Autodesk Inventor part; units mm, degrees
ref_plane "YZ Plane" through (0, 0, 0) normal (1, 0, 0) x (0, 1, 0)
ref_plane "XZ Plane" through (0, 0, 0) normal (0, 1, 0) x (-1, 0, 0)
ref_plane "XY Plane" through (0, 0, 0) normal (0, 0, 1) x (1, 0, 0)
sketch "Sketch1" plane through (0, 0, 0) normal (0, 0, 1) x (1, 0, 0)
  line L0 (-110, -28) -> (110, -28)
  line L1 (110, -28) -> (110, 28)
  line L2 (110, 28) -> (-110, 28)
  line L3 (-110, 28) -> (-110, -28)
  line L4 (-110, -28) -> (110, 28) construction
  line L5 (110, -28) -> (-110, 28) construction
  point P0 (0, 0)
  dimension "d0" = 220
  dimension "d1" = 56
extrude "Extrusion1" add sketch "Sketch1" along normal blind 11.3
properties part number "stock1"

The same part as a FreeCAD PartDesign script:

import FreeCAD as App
import Part
import Sketcher
from FreeCAD import Vector

doc = App.newDocument("Part")
body = doc.addObject("PartDesign::Body", "Body")

# Sketch on XY plane
sketch1 = doc.addObject("Sketcher::SketchObject", "Sketch")
body.addObject(sketch1)
sketch1.AttachmentSupport = (doc.XY_Plane, [""])
sketch1.MapMode = "FlatFace"
sketch1.addGeometry([
    Part.LineSegment(Vector(-110, 28, 0), Vector(-110, -28, 0)),
    Part.LineSegment(Vector(-110, -28, 0), Vector(110, -28, 0)),
    Part.LineSegment(Vector(110, -28, 0), Vector(110, 28, 0)),
    Part.LineSegment(Vector(110, 28, 0), Vector(-110, 28, 0)),
], False)
sketch1.addConstraint([
    Sketcher.Constraint("Coincident", 0, 2, 1, 1),
    Sketcher.Constraint("Coincident", 1, 2, 2, 1),
    Sketcher.Constraint("Coincident", 2, 2, 3, 1),
    Sketcher.Constraint("Coincident", 3, 2, 0, 1),
    Sketcher.Constraint("Vertical", 0),
    Sketcher.Constraint("Horizontal", 1),
    Sketcher.Constraint("Vertical", 2),
    Sketcher.Constraint("Horizontal", 3),
    Sketcher.Constraint("Symmetric", 0, 2, 2, 2, -1, 1),
    Sketcher.Constraint("DistanceX", 1, 1, 1, 2, 220.0),
    Sketcher.Constraint("DistanceY", 0, 2, 0, 1, 56.0),
])
pad1 = doc.addObject("PartDesign::Pad", "Pad")
body.addObject(pad1)
pad1.Profile = sketch1
pad1.Length = 11.3

doc.recompute()
